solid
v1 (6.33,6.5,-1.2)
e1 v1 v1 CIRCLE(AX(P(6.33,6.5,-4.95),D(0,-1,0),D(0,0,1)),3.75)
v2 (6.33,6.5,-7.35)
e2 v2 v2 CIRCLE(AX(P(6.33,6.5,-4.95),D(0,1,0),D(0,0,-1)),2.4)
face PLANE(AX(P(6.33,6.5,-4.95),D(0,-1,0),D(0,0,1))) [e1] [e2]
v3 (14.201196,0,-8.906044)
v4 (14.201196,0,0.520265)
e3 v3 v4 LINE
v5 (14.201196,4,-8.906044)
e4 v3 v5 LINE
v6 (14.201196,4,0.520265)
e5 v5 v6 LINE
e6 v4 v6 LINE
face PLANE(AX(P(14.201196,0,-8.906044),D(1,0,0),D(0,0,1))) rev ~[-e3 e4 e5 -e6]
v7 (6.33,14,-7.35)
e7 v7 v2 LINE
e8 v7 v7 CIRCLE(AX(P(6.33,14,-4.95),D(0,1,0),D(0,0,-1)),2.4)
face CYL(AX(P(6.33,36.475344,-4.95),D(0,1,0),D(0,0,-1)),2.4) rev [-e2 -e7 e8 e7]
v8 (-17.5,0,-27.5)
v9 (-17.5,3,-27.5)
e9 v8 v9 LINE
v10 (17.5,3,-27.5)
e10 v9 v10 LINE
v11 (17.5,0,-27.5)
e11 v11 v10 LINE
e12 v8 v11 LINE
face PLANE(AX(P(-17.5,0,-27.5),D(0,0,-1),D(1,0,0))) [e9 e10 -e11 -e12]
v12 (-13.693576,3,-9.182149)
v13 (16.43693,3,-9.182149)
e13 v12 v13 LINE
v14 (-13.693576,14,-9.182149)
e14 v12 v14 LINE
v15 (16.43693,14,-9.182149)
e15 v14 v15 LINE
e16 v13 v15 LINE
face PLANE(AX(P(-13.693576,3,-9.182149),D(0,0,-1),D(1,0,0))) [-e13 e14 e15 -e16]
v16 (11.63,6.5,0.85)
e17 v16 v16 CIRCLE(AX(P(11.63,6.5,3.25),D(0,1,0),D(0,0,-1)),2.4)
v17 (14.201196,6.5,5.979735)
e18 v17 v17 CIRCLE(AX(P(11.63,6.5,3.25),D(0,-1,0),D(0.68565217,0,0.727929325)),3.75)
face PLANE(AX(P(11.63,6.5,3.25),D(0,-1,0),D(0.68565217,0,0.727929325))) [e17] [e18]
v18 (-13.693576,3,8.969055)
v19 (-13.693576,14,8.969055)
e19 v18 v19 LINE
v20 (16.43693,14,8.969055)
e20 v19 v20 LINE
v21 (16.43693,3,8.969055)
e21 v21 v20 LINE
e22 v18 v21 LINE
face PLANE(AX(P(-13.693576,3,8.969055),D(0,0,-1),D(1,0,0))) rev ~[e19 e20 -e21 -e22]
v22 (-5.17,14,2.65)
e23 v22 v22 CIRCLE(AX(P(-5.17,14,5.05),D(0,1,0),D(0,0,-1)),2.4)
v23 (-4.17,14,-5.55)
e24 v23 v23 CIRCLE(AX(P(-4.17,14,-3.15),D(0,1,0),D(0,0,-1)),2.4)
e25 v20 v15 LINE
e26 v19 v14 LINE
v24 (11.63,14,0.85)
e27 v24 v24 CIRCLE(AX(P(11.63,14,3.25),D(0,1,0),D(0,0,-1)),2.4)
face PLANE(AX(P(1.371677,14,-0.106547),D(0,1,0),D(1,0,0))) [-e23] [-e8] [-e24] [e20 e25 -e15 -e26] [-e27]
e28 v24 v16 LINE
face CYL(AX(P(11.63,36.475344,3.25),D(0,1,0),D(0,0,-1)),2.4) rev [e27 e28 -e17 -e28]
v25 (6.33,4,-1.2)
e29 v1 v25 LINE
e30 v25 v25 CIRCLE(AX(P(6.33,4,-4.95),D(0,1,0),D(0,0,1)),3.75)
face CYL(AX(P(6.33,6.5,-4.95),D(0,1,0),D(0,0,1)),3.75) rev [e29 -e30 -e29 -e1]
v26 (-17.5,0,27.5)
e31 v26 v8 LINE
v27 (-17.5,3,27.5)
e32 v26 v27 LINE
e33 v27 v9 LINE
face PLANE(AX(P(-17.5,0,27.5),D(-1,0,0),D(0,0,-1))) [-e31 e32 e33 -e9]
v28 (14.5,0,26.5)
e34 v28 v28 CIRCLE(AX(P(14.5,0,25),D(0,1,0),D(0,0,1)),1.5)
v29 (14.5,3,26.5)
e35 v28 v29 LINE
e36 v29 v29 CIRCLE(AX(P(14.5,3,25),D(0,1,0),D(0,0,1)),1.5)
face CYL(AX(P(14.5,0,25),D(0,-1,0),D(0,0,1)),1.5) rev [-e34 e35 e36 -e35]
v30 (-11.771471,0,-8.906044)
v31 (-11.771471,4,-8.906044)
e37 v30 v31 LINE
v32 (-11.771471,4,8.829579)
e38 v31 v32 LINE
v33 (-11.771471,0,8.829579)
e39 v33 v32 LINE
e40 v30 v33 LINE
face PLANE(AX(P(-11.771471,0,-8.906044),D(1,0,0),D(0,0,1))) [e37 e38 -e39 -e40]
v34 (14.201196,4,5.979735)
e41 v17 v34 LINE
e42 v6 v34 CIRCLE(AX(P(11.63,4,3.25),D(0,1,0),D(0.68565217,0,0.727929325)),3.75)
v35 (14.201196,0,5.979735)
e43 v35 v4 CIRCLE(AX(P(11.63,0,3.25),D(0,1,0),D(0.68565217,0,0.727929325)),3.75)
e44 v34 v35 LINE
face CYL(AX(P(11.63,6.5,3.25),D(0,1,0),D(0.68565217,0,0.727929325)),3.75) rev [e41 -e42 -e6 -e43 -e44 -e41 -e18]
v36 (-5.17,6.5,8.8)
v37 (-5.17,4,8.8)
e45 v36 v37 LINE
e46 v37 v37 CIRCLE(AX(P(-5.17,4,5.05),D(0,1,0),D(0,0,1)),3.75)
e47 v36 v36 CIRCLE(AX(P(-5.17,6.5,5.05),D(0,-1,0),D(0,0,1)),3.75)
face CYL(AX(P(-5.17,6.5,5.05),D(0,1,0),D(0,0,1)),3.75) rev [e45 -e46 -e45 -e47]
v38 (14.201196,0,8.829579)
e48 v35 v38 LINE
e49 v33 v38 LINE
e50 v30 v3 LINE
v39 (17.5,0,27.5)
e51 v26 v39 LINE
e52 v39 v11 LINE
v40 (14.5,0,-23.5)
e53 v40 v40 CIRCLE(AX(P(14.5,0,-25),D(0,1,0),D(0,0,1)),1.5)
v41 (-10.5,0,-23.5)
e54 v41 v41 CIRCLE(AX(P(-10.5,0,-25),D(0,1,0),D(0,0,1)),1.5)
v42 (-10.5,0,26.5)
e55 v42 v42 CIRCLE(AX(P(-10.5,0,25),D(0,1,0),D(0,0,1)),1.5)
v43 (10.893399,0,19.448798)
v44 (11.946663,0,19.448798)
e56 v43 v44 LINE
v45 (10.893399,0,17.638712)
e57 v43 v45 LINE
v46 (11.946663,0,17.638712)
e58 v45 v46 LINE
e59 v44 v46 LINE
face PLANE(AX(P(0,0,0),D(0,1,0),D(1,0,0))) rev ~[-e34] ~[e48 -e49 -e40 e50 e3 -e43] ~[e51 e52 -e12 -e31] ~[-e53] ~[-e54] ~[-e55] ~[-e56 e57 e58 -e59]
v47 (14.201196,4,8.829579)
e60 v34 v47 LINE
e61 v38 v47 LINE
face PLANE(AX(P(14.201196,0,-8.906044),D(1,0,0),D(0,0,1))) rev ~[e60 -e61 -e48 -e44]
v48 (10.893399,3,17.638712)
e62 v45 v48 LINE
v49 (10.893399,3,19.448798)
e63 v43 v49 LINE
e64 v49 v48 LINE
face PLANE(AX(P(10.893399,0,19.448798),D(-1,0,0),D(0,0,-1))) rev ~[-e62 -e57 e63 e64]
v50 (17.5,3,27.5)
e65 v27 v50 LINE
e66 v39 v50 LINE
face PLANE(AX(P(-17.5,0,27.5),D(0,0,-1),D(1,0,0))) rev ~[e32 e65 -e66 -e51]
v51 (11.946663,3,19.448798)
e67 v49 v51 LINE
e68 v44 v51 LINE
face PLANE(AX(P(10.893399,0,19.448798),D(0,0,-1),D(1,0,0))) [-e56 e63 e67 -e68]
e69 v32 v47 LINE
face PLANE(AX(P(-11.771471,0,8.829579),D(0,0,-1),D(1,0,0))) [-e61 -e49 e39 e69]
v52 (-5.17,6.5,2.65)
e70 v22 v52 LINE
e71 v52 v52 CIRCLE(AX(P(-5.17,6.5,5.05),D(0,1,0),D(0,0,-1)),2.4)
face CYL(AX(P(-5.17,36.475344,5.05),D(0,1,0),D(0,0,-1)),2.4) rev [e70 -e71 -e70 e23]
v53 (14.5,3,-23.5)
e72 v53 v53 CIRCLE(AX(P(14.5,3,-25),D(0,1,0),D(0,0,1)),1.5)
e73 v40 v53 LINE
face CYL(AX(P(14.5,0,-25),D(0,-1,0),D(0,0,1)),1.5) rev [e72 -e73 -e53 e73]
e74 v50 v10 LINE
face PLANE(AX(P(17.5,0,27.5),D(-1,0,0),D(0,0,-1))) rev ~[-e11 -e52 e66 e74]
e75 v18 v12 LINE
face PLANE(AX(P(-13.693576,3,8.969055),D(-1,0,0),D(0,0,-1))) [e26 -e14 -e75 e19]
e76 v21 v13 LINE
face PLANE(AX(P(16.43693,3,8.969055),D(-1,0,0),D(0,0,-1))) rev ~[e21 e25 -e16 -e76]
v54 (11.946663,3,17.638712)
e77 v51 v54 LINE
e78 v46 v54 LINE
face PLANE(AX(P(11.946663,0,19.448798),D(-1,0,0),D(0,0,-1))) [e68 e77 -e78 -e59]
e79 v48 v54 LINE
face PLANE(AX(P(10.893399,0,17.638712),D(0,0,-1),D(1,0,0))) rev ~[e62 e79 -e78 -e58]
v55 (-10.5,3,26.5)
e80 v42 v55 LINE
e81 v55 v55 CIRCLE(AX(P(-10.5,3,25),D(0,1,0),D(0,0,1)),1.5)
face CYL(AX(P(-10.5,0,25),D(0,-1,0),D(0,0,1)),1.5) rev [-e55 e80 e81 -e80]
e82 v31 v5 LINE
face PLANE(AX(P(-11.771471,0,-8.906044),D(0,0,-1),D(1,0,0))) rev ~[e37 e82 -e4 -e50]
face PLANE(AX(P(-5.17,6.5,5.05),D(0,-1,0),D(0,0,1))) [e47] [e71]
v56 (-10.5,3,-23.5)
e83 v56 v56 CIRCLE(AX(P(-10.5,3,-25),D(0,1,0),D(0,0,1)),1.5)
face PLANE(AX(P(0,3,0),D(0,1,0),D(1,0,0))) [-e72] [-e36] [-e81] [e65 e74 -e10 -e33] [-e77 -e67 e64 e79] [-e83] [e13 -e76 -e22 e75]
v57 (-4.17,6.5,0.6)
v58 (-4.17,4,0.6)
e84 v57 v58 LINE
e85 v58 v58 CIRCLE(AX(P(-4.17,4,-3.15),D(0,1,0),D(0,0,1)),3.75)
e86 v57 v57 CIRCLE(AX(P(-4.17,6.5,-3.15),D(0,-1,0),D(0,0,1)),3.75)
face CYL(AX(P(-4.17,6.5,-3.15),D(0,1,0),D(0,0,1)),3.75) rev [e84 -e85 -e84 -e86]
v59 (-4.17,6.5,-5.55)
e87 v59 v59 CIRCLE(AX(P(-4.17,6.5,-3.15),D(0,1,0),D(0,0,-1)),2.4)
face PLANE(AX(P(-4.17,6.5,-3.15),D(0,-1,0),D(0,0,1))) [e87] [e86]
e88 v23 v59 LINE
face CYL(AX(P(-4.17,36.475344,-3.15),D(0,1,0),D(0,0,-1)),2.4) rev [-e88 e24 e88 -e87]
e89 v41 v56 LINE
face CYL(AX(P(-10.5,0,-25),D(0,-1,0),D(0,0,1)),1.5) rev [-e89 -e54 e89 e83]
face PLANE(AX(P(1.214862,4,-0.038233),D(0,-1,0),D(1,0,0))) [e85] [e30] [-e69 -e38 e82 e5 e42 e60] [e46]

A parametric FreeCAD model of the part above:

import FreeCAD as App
import Part
import Sketcher

V = App.Vector
Q = App.Units.Quantity


def add_polygon(sketch, points):
    """Adds a closed chain of lines whose ends are joined by coincident constraints."""
    first, n = sketch.GeometryCount, len(points)
    for a, b in zip(points, points[1:] + points[:1]):
        sketch.addGeometry(Part.LineSegment(App.Vector(*a, 0), App.Vector(*b, 0)), False)
    for i in range(n):
        sketch.addConstraint(Sketcher.Constraint("Coincident", first + i, 2, first + (i + 1) % n, 1))

doc = App.newDocument("Part")
body = doc.addObject("PartDesign::Body", "Body")

# Sketch on XZ plane
sketch1 = doc.addObject("Sketcher::SketchObject", "Sketch")
body.addObject(sketch1)
sketch1.AttachmentSupport = (doc.XZ_Plane, [""])
sketch1.MapMode = "FlatFace"
add_polygon(sketch1, [(-17.5, -27.5), (-17.5, 27.5), (17.5, 27.5), (17.5, -27.5)])  # lines 0-3
sketch1.addGeometry(Part.Circle(V(-10.5, 25, 0), V(0, 0, 1), 1.5), False)  # 4
sketch1.addGeometry(Part.Circle(V(14.5, 25, 0), V(0, 0, 1), 1.5), False)  # 5
add_polygon(sketch1, [(11.946663, 19.448798), (10.893399, 19.448798), (10.893399, 17.638712), (11.946663, 17.638712)])  # lines 6-9
sketch1.addGeometry(Part.Circle(V(-10.5, -25, 0), V(0, 0, 1), 1.5), False)  # 10
sketch1.addGeometry(Part.Circle(V(14.5, -25, 0), V(0, 0, 1), 1.5), False)  # 11
sketch1.addConstraint([
    Sketcher.Constraint("Vertical", 0),
    Sketcher.Constraint("Horizontal", 1),
    Sketcher.Constraint("Vertical", 2),
    Sketcher.Constraint("Horizontal", 3),
    Sketcher.Constraint("Horizontal", 6),
    Sketcher.Constraint("Vertical", 7),
    Sketcher.Constraint("Horizontal", 8),
    Sketcher.Constraint("Vertical", 9),
    Sketcher.Constraint("Equal", 4, 5),
    Sketcher.Constraint("Equal", 5, 10),
    Sketcher.Constraint("Equal", 10, 11),
    Sketcher.Constraint("Symmetric", 0, 2, 2, 2, -1, 1),
    Sketcher.Constraint("Symmetric", 4, 3, 10, 3, -1),
    Sketcher.Constraint("Symmetric", 5, 3, 11, 3, -1),
    Sketcher.Constraint("Horizontal", 4, 3, 5, 3),
    Sketcher.Constraint("Diameter", 4, Q("3 mm")),
    Sketcher.Constraint("DistanceX", 1, 1, 1, 2, Q("35 mm")),
    Sketcher.Constraint("DistanceY", 0, 1, 0, 2, Q("55 mm")),
    Sketcher.Constraint("DistanceY", -1, 1, 4, 3, Q("25 mm")),
    Sketcher.Constraint("DistanceX", 4, 3, 5, 3, Q("25 mm")),
    Sketcher.Constraint("DistanceX", 0, 2, 4, 3, Q("7 mm")),
    Sketcher.Constraint("DistanceX", -1, 1, 6, 2, Q("10.893399 mm")),
    Sketcher.Constraint("DistanceY", -1, 1, 6, 2, Q("19.448798 mm")),
    Sketcher.Constraint("DistanceX", 6, 2, 6, 1, Q("1.053264 mm")),
    Sketcher.Constraint("DistanceY", 7, 2, 7, 1, Q("1.810087 mm")),
])
pad1 = doc.addObject("PartDesign::Pad", "Pad")
body.addObject(pad1)
pad1.Profile = sketch1
pad1.Length = 3
pad1.Reversed = True

# Sketch on XZ plane
sketch2 = doc.addObject("Sketcher::SketchObject", "Sketch001")
body.addObject(sketch2)
sketch2.AttachmentSupport = (doc.XZ_Plane, [""])
sketch2.MapMode = "FlatFace"
sketch2.AttachmentOffset = App.Placement(V(0, 0, -3), App.Rotation())
add_polygon(sketch2, [(-13.693576, -9.182149), (-13.693576, 8.969055), (16.43693, 8.969055), (16.43693, -9.182149)])  # lines 0-3
sketch2.addConstraint([
    Sketcher.Constraint("Vertical", 0),
    Sketcher.Constraint("Horizontal", 1),
    Sketcher.Constraint("Vertical", 2),
    Sketcher.Constraint("Horizontal", 3),
    Sketcher.Constraint("DistanceX", 1, 1, 1, 2, Q("30.130506 mm")),
    Sketcher.Constraint("DistanceY", 0, 1, 0, 2, Q("18.151203 mm")),
    Sketcher.Constraint("DistanceX", -1, 1, 1, 2, Q("16.43693 mm")),
    Sketcher.Constraint("DistanceY", 2, 2, -1, 1, Q("9.182149 mm")),
])
pad2 = doc.addObject("PartDesign::Pad", "Pad001")
body.addObject(pad2)
pad2.Profile = sketch2
pad2.Length = 11
pad2.Reversed = True

# Sketch on XZ plane
sketch3 = doc.addObject("Sketcher::SketchObject", "Sketch002")
body.addObject(sketch3)
sketch3.AttachmentSupport = (doc.XZ_Plane, [""])
sketch3.MapMode = "FlatFace"
add_polygon(sketch3, [(-11.771471, 8.829579), (-11.771471, -8.906044), (14.201196, -8.906044), (14.201196, 8.829579)])  # lines 0-3
sketch3.addConstraint([
    Sketcher.Constraint("Vertical", 0),
    Sketcher.Constraint("Horizontal", 1),
    Sketcher.Constraint("Vertical", 2),
    Sketcher.Constraint("Horizontal", 3),
    Sketcher.Constraint("DistanceX", 1, 1, 1, 2, Q("25.972667 mm")),
    Sketcher.Constraint("DistanceY", 0, 2, 0, 1, Q("17.735623 mm")),
    Sketcher.Constraint("DistanceX", 0, 2, -1, 1, Q("11.771471 mm")),
    Sketcher.Constraint("DistanceY", -1, 1, 2, 2, Q("8.829579 mm")),
])
pocket1 = doc.addObject("PartDesign::Pocket", "Pocket")
body.addObject(pocket1)
pocket1.Profile = sketch3
pocket1.Length = 4

# Sketch on XZ plane
sketch4 = doc.addObject("Sketcher::SketchObject", "Sketch003")
body.addObject(sketch4)
sketch4.AttachmentSupport = (doc.XZ_Plane, [""])
sketch4.MapMode = "FlatFace"
sketch4.addGeometry([
    Part.Circle(V(11.63, 3.25, 0), V(0, 0, 1), 2.4),
    Part.Circle(V(-5.17, 5.05, 0), V(0, 0, 1), 2.4),
    Part.Circle(V(-4.17, -3.15, 0), V(0, 0, 1), 2.4),
    Part.Circle(V(6.33, -4.95, 0), V(0, 0, 1), 2.4),
], False)
sketch4.addConstraint([
    Sketcher.Constraint("Equal", 0, 1),
    Sketcher.Constraint("Equal", 1, 2),
    Sketcher.Constraint("Equal", 2, 3),
    Sketcher.Constraint("Diameter", 0, Q("4.8 mm")),
    Sketcher.Constraint("DistanceX", 1, 3, 2, 3, Q("1 mm")),
    Sketcher.Constraint("DistanceY", 3, 3, 1, 3, Q("10 mm")),
    Sketcher.Constraint("DistanceX", 1, 3, 0, 3, Q("16.8 mm")),
    Sketcher.Constraint("DistanceY", 0, 3, 1, 3, Q("1.8 mm")),
    Sketcher.Constraint("DistanceY", 2, 3, 1, 3, Q("8.2 mm")),
    Sketcher.Constraint("DistanceX", 3, 3, 0, 3, Q("5.3 mm")),
    Sketcher.Constraint("DistanceX", -1, 1, 0, 3, Q("11.63 mm")),
    Sketcher.Constraint("DistanceY", -1, 1, 0, 3, Q("3.25 mm")),
])
pocket2 = doc.addObject("PartDesign::Pocket", "Pocket001")
body.addObject(pocket2)
pocket2.Profile = sketch4
pocket2.Type = "ThroughAll"
pocket2.Midplane = True

# Sketch on XZ plane
sketch5 = doc.addObject("Sketcher::SketchObject", "Sketch004")
body.addObject(sketch5)
sketch5.AttachmentSupport = (doc.XZ_Plane, [""])
sketch5.MapMode = "FlatFace"
sketch5.AttachmentOffset = App.Placement(V(0, 0, -4), App.Rotation())
sketch5.addGeometry([
    Part.Circle(V(-5.17, 5.05, 0), V(0, 0, 1), 3.75),
    Part.Circle(V(-4.17, -3.15, 0), V(0, 0, 1), 3.75),
    Part.Circle(V(6.33, -4.95, 0), V(0, 0, 1), 3.75),
    Part.Circle(V(11.63, 3.25, 0), V(0, 0, 1), 3.75),
], False)
sketch5.addConstraint([
    Sketcher.Constraint("Equal", 0, 1),
    Sketcher.Constraint("Equal", 1, 2),
    Sketcher.Constraint("Equal", 2, 3),
    Sketcher.Constraint("Diameter", 0, Q("7.5 mm")),
    Sketcher.Constraint("DistanceX", 0, 3, 1, 3, Q("1 mm")),
    Sketcher.Constraint("DistanceY", 2, 3, 0, 3, Q("10 mm")),
    Sketcher.Constraint("DistanceY", 1, 3, 0, 3, Q("8.2 mm")),
    Sketcher.Constraint("DistanceX", 1, 3, 2, 3, Q("10.5 mm")),
    Sketcher.Constraint("DistanceX", 2, 3, 3, 3, Q("5.3 mm")),
    Sketcher.Constraint("DistanceY", 2, 3, 3, 3, Q("8.2 mm")),
    Sketcher.Constraint("DistanceX", 0, 3, -1, 1, Q("5.17 mm")),
    Sketcher.Constraint("DistanceY", -1, 1, 0, 3, Q("5.05 mm")),
])
pocket3 = doc.addObject("PartDesign::Pocket", "Pocket002")
body.addObject(pocket3)
pocket3.Profile = sketch5
pocket3.Type = "TwoLengths"
pocket3.Length = 35.095454
pocket3.Length2 = 2.5
pocket3.Reversed = True

doc.recompute()
